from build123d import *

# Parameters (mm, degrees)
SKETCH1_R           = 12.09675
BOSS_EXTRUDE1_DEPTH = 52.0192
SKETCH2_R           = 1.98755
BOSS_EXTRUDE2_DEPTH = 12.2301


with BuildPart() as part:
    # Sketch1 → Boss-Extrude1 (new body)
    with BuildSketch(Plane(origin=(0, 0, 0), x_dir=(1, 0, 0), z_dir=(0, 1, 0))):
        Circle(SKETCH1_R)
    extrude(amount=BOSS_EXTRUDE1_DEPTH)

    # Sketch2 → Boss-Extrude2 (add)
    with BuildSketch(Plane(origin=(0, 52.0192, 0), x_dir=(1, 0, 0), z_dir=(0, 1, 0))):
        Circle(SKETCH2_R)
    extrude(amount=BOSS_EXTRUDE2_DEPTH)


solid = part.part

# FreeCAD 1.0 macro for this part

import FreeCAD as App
import Part
import Sketcher
Q = App.Units.Quantity

doc = App.newDocument("Part")
body = doc.addObject("PartDesign::Body", "Body")

sketch1 = body.newObject("Sketcher::SketchObject", "Sketch")
sketch1.AttachmentSupport = (doc.getObject("XZ_Plane"), [""])
sketch1.MapMode = "FlatFace"
sketch1.addGeometry(Part.Circle(App.Vector(0, 0, 0), App.Vector(0, 0, 1), 12.09675), False)
sketch1.addConstraint([
    Sketcher.Constraint("Coincident", 0, 3, -1, 1),
    Sketcher.Constraint("Diameter", 0, Q("0.9525 in")),
])
pad1 = body.newObject("PartDesign::Pad", "Pad")
pad1.Profile = sketch1
pad1.Length = Q("2.048 in")
pad1.Reversed = True

sketch2 = body.newObject("Sketcher::SketchObject", "Sketch001")
sketch2.AttachmentSupport = (doc.getObject("XZ_Plane"), [""])
sketch2.MapMode = "FlatFace"
sketch2.AttachmentOffset = App.Placement(App.Vector(0, 0, -2.048 * 25.4), App.Rotation())
sketch2.addGeometry(Part.Circle(App.Vector(0, 0, 0), App.Vector(0, 0, 1), 1.98755), False)
sketch2.addConstraint([
    Sketcher.Constraint("Coincident", 0, 3, -1, 1),
    Sketcher.Constraint("Diameter", 0, Q("0.1565 in")),
])
pad2 = body.newObject("PartDesign::Pad", "Pad001")
pad2.Profile = sketch2
pad2.Length = Q("0.4815 in")
pad2.Reversed = True

doc.recompute()
